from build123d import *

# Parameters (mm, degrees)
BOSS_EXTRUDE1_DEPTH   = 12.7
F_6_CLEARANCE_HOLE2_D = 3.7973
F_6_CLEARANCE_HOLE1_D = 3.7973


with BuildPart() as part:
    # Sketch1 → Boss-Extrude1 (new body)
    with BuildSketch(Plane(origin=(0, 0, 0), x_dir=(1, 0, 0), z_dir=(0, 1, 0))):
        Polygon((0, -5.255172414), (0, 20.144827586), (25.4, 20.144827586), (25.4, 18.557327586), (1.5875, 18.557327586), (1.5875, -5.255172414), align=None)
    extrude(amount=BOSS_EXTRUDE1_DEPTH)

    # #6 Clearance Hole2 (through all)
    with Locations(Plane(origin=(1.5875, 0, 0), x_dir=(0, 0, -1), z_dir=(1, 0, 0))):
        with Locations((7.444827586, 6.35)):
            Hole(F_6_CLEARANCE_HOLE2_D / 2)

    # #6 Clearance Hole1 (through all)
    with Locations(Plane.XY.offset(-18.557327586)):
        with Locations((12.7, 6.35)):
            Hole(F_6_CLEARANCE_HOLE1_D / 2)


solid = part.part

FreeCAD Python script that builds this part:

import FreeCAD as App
import Part
import Sketcher
from FreeCAD import Vector
Q = App.Units.Quantity

doc = App.newDocument("Part")
body = doc.addObject("PartDesign::Body", "Body")

# Sketch on XZ plane
sketch1 = doc.addObject("Sketcher::SketchObject", "Sketch")
body.addObject(sketch1)
sketch1.AttachmentSupport = (doc.XZ_Plane, [""])
sketch1.MapMode = "FlatFace"
sketch1.addGeometry([
    Part.LineSegment(Vector(0, -20.144828, 0), Vector(0, 5.255172, 0)),  # 0
    Part.LineSegment(Vector(0, 5.255172, 0), Vector(1.5875, 5.255172, 0)),  # 1
    Part.LineSegment(Vector(1.5875, 5.255172, 0), Vector(1.5875, -18.557328, 0)),  # 2
    Part.LineSegment(Vector(1.5875, -18.557328, 0), Vector(25.4, -18.557328, 0)),  # 3
    Part.LineSegment(Vector(25.4, -18.557328, 0), Vector(25.4, -20.144828, 0)),  # 4
    Part.LineSegment(Vector(25.4, -20.144828, 0), Vector(0, -20.144828, 0)),  # 5
], False)
sketch1.addConstraint([
    Sketcher.Constraint("Coincident", 0, 2, 1, 1),
    Sketcher.Constraint("Coincident", 1, 2, 2, 1),
    Sketcher.Constraint("Coincident", 2, 2, 3, 1),
    Sketcher.Constraint("Coincident", 3, 2, 4, 1),
    Sketcher.Constraint("Coincident", 4, 2, 5, 1),
    Sketcher.Constraint("Coincident", 5, 2, 0, 1),
    Sketcher.Constraint("Vertical", 0),
    Sketcher.Constraint("Horizontal", 1),
    Sketcher.Constraint("Vertical", 2),
    Sketcher.Constraint("Horizontal", 3),
    Sketcher.Constraint("Vertical", 4),
    Sketcher.Constraint("Horizontal", 5),
    Sketcher.Constraint("PointOnObject", 0, 2, -2),
    Sketcher.Constraint("Equal", 5, 0),
    Sketcher.Constraint("Equal", 3, 2),
    Sketcher.Constraint("DistanceX", 5, 2, 5, 1, Q("1 in")),
    Sketcher.Constraint("DistanceX", 1, 1, 1, 2, Q("0.0625 in")),
    Sketcher.Constraint("DistanceY", -1, 1, 0, 2, 5.255172),
])
pad1 = doc.addObject("PartDesign::Pad", "Pad")
body.addObject(pad1)
pad1.Profile = sketch1
pad1.Length = Q("0.5 in")
pad1.Reversed = True

# Sketch on YZ plane
sketch2 = doc.addObject("Sketcher::SketchObject", "Sketch001")
body.addObject(sketch2)
sketch2.AttachmentSupport = (doc.YZ_Plane, [""])
sketch2.MapMode = "FlatFace"
sketch2.AttachmentOffset = App.Placement(Vector(0, 0, 0.0625 * 25.4), App.Rotation())
sketch2.addGeometry(Part.Circle(Vector(6.35, -7.444828, 0), Vector(0, 0, 1), 1.89865), False)
sketch2.addConstraint([
    Sketcher.Constraint("Diameter", 0, Q("0.1495 in")),
    Sketcher.Constraint("DistanceX", -1, 1, 0, 3, Q("0.25 in")),
    Sketcher.Constraint("DistanceY", 0, 3, -1, 1, 7.444828),
])
doc.recompute()
hole = doc.addObject("PartDesign::Hole", "Hole")
body.addObject(hole)
hole.Profile = sketch2
hole.ThreadType = "None"
hole.Diameter = Q("0.1495 in")
hole.DepthType = "ThroughAll"

# Sketch on XY plane
sketch3 = doc.addObject("Sketcher::SketchObject", "Sketch002")
body.addObject(sketch3)
sketch3.AttachmentSupport = (doc.XY_Plane, [""])
sketch3.MapMode = "FlatFace"
sketch3.AttachmentOffset = App.Placement(Vector(0, 0, -18.557328), App.Rotation())
sketch3.addGeometry(Part.Circle(Vector(12.7, 6.35, 0), Vector(0, 0, 1), 1.89865), False)
sketch3.addConstraint([
    Sketcher.Constraint("Diameter", 0, Q("0.1495 in")),
    Sketcher.Constraint("DistanceX", -1, 1, 0, 3, Q("0.5 in")),
    Sketcher.Constraint("DistanceY", -1, 1, 0, 3, Q("0.25 in")),
])
doc.recompute()
hole2 = doc.addObject("PartDesign::Hole", "Hole001")
body.addObject(hole2)
hole2.Profile = sketch3
hole2.ThreadType = "None"
hole2.Diameter = Q("0.1495 in")
hole2.DepthType = "ThroughAll"

doc.recompute()
